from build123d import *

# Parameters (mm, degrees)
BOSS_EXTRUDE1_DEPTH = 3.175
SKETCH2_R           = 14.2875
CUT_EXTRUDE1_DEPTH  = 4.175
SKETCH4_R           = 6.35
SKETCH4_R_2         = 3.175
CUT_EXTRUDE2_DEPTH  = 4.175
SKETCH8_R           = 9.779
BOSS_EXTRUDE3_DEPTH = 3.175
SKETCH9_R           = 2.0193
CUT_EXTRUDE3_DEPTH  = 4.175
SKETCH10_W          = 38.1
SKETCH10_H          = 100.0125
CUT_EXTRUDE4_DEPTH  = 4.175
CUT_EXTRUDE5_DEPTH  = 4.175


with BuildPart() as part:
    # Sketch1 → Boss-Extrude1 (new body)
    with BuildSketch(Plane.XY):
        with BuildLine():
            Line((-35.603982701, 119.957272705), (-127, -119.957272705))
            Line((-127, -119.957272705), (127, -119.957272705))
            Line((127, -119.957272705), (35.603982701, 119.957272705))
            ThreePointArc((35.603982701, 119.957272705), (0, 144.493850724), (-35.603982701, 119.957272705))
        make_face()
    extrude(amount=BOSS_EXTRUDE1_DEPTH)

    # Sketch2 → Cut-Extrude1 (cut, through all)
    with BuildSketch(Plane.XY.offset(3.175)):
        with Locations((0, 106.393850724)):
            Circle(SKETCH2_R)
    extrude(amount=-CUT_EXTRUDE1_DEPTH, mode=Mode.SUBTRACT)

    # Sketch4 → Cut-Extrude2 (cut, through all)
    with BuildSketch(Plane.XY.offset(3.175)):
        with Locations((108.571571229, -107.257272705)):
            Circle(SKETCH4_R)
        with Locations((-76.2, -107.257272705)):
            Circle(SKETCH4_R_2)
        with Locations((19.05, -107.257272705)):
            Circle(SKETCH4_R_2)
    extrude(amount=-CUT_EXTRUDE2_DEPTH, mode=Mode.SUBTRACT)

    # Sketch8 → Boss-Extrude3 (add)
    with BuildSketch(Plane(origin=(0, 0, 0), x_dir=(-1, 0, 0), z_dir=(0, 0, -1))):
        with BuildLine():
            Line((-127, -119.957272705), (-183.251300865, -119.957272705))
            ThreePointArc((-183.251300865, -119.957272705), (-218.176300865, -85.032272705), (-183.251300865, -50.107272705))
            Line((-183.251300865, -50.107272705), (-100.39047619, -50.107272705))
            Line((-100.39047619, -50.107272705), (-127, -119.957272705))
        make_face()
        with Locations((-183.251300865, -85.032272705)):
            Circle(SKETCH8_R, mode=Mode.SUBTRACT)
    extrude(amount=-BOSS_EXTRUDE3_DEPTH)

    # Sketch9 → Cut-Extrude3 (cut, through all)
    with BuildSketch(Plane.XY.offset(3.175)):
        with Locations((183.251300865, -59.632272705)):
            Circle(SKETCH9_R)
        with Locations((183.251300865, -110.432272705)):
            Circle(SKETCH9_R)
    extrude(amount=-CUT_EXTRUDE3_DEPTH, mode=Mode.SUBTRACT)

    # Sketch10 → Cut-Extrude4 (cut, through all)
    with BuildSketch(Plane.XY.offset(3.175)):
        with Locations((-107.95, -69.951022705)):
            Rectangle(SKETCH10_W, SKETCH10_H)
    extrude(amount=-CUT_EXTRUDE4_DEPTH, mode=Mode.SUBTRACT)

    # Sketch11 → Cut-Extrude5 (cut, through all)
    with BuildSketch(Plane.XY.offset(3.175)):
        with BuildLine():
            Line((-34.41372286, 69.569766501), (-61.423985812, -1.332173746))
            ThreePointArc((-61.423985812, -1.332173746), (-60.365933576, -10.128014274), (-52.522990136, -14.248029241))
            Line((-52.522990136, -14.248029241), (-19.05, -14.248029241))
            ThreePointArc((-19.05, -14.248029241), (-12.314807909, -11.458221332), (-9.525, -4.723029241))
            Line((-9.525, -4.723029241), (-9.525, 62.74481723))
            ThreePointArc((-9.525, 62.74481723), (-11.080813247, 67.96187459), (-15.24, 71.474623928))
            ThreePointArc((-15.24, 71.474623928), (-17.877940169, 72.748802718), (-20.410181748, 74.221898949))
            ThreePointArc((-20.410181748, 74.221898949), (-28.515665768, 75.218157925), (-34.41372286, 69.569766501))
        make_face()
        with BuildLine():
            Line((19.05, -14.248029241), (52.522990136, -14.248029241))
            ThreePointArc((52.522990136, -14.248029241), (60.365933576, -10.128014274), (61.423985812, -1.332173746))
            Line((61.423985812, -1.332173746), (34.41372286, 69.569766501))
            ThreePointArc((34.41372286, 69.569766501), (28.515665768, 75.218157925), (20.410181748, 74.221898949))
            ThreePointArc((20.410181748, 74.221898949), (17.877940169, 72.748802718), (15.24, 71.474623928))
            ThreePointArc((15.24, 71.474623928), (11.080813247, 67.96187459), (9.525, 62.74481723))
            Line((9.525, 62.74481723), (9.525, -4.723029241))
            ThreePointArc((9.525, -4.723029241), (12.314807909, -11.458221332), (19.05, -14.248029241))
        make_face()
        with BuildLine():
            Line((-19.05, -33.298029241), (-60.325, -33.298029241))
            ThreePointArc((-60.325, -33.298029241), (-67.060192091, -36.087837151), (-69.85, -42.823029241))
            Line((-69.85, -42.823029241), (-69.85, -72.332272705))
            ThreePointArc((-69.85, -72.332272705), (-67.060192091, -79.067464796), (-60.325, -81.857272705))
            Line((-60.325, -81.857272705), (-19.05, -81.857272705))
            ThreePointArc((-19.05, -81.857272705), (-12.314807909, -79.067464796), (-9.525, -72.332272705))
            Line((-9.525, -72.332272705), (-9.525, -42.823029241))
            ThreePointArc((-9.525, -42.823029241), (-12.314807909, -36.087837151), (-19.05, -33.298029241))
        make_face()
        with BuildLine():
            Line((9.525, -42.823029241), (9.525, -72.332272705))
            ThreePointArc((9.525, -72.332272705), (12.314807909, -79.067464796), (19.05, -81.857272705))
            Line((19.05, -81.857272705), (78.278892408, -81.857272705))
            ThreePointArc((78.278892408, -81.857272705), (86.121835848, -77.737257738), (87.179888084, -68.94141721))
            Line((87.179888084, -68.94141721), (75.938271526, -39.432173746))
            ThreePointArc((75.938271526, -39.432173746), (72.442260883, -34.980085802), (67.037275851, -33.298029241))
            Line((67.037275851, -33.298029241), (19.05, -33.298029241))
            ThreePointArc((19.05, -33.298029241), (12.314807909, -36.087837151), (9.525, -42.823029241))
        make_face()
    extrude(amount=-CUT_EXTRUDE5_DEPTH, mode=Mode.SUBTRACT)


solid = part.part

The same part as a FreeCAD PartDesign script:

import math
import FreeCAD as App
import Part
import Sketcher
Q = App.Units.Quantity


def add_polygon(sketch, points):
    """Adds a closed chain of lines whose ends are joined by coincident constraints."""
    first, n = sketch.GeometryCount, len(points)
    for a, b in zip(points, points[1:] + points[:1]):
        sketch.addGeometry(Part.LineSegment(App.Vector(*a, 0), App.Vector(*b, 0)), False)
    for i in range(n):
        sketch.addConstraint(Sketcher.Constraint("Coincident", first + i, 2, first + (i + 1) % n, 1))

doc = App.newDocument("Part")
body = doc.addObject("PartDesign::Body", "Body")

sketch1 = doc.addObject("Sketcher::SketchObject", "Sketch")
body.addObject(sketch1)
sketch1.AttachmentSupport = (doc.XY_Plane, [""])
sketch1.MapMode = "FlatFace"
sketch1.addGeometry([
    Part.LineSegment(App.Vector(-36, 120, 0), App.Vector(-127, -120, 0)),
    Part.LineSegment(App.Vector(-127, -120, 0), App.Vector(127, -120, 0)),
    Part.LineSegment(App.Vector(127, -120, 0), App.Vector(36, 120, 0)),
    Part.ArcOfCircle(Part.Circle(App.Vector(0, 106, 0), App.Vector(0, 0, 1), 38), math.radians(21), math.radians(159)),
], False)
sketch1.addConstraint([
    Sketcher.Constraint("Coincident", 0, 2, 1, 1),
    Sketcher.Constraint("Coincident", 1, 2, 2, 1),
    Sketcher.Constraint("Tangent", 2, 2, 3, 1),
    Sketcher.Constraint("Tangent", 3, 2, 0, 1),
    Sketcher.Constraint("Horizontal", 1),
    Sketcher.Constraint("Symmetric", 2, 2, 3, 2, -2),
    Sketcher.Constraint("Radius", 3, Q("1.5 in")),
    Sketcher.Constraint("DistanceX", 1, 1, 1, 2, Q("10 in")),
    Sketcher.Constraint("DistanceY", -1, 1, 3, 3, 106.393851),
    Sketcher.Constraint("DistanceY", 3, 3, 2, 2, 13.563422),
])
pad1 = doc.addObject("PartDesign::Pad", "Pad")
body.addObject(pad1)
pad1.Profile = sketch1
pad1.Length = Q("0.125 in")

sketch2 = doc.addObject("Sketcher::SketchObject", "Sketch001")
body.addObject(sketch2)
sketch2.AttachmentSupport = (doc.XY_Plane, [""])
sketch2.MapMode = "FlatFace"
sketch2.AttachmentOffset = App.Placement(App.Vector(0, 0, 0.125 * 25.4), App.Rotation())
sketch2.addGeometry(Part.Circle(App.Vector(0, 106, 0), App.Vector(0, 0, 1), 14), False)
sketch2.addConstraint([
    Sketcher.Constraint("PointOnObject", 0, 3, -2),
    Sketcher.Constraint("Diameter", 0, Q("1.125 in")),
    Sketcher.Constraint("DistanceY", -1, 1, 0, 3, 106.393851),
])
pocket1 = doc.addObject("PartDesign::Pocket", "Pocket")
body.addObject(pocket1)
pocket1.Profile = sketch2
pocket1.Type = "ThroughAll"

sketch3 = doc.addObject("Sketcher::SketchObject", "Sketch002")
body.addObject(sketch3)
sketch3.AttachmentSupport = (doc.XY_Plane, [""])
sketch3.MapMode = "FlatFace"
sketch3.AttachmentOffset = App.Placement(App.Vector(0, 0, 0.125 * 25.4), App.Rotation())
sketch3.addGeometry([
    Part.Circle(App.Vector(108.6, -107.3, 0), App.Vector(0, 0, 1), 6.3),
    Part.Circle(App.Vector(-76.2, -107.3, 0), App.Vector(0, 0, 1), 3.2),
    Part.Circle(App.Vector(19.1, -107.3, 0), App.Vector(0, 0, 1), 3.2),
], False)
sketch3.addConstraint([
    Sketcher.Constraint("Equal", 1, 2),
    Sketcher.Constraint("Horizontal", 0, 3, 1, 3),
    Sketcher.Constraint("Horizontal", 1, 3, 2, 3),
    Sketcher.Constraint("Diameter", 0, Q("0.5 in")),
    Sketcher.Constraint("Diameter", 1, Q("0.25 in")),
    Sketcher.Constraint("DistanceX", 1, 3, -1, 1, Q("3 in")),
    Sketcher.Constraint("DistanceX", -1, 1, 2, 3, Q("0.75 in")),
    Sketcher.Constraint("DistanceX", -1, 1, 0, 3, 108.571571),
    Sketcher.Constraint("DistanceY", 0, 3, -1, 1, 107.257273),
])
pocket2 = doc.addObject("PartDesign::Pocket", "Pocket001")
body.addObject(pocket2)
pocket2.Profile = sketch3
pocket2.Type = "ThroughAll"

sketch4 = doc.addObject("Sketcher::SketchObject", "Sketch003")
body.addObject(sketch4)
sketch4.AttachmentSupport = (doc.XY_Plane, [""])
sketch4.MapMode = "FlatFace"
sketch4.addGeometry([
    Part.LineSegment(App.Vector(183, -120, 0), App.Vector(127, -120, 0)),
    Part.LineSegment(App.Vector(127, -120, 0), App.Vector(100, -50, 0)),
    Part.LineSegment(App.Vector(100, -50, 0), App.Vector(183, -50, 0)),
    Part.ArcOfCircle(Part.Circle(App.Vector(183, -85, 0), App.Vector(0, 0, 1), 35), math.radians(-90), math.radians(90)),
    Part.Circle(App.Vector(183, -85, 0), App.Vector(0, 0, 1), 10),
], False)
sketch4.addConstraint([
    Sketcher.Constraint("Coincident", 0, 2, 1, 1),
    Sketcher.Constraint("Coincident", 1, 2, 2, 1),
    Sketcher.Constraint("Tangent", 2, 2, 3, 2),
    Sketcher.Constraint("Tangent", 3, 1, 0, 1),
    Sketcher.Constraint("Horizontal", 0),
    Sketcher.Constraint("Horizontal", 2),
    Sketcher.Constraint("Coincident", 4, 3, 3, 3),
    Sketcher.Constraint("Diameter", 4, Q("0.77 in")),
    Sketcher.Constraint("DistanceX", -1, 1, 0, 2, Q("5 in")),
    Sketcher.Constraint("Radius", 3, Q("1.375 in")),
    Sketcher.Constraint("DistanceX", 0, 2, 0, 1, 56.251301),
    Sketcher.Constraint("DistanceX", 2, 1, 2, 2, 82.860825),
    Sketcher.Constraint("DistanceY", 3, 3, -1, 1, 85.032273),
])
pad2 = doc.addObject("PartDesign::Pad", "Pad001")
body.addObject(pad2)
pad2.Profile = sketch4
pad2.Length = Q("0.125 in")

sketch5 = doc.addObject("Sketcher::SketchObject", "Sketch004")
body.addObject(sketch5)
sketch5.AttachmentSupport = (doc.XY_Plane, [""])
sketch5.MapMode = "FlatFace"
sketch5.AttachmentOffset = App.Placement(App.Vector(0, 0, 0.125 * 25.4), App.Rotation())
sketch5.addGeometry([
    Part.Circle(App.Vector(183.3, -59.6, 0), App.Vector(0, 0, 1), 2),
    Part.Circle(App.Vector(183.3, -110.4, 0), App.Vector(0, 0, 1), 2),
], False)
sketch5.addConstraint([
    Sketcher.Constraint("Equal", 0, 1),
    Sketcher.Constraint("Vertical", 0, 3, 1, 3),
    Sketcher.Constraint("Diameter", 0, Q("0.159 in")),
    Sketcher.Constraint("DistanceY", 1, 3, 0, 3, Q("2 in")),
    Sketcher.Constraint("DistanceX", -1, 1, 0, 3, 183.251301),
    Sketcher.Constraint("DistanceY", 0, 3, -1, 1, 59.632273),
])
pocket3 = doc.addObject("PartDesign::Pocket", "Pocket002")
body.addObject(pocket3)
pocket3.Profile = sketch5
pocket3.Type = "ThroughAll"

sketch6 = doc.addObject("Sketcher::SketchObject", "Sketch005")
body.addObject(sketch6)
sketch6.AttachmentSupport = (doc.XY_Plane, [""])
sketch6.MapMode = "FlatFace"
sketch6.AttachmentOffset = App.Placement(App.Vector(0, 0, 0.125 * 25.4), App.Rotation())
add_polygon(sketch6, [(-127, -20), (-127, -120), (-89, -120), (-89, -20)])
sketch6.addConstraint([
    Sketcher.Constraint("Vertical", 0),
    Sketcher.Constraint("Horizontal", 1),
    Sketcher.Constraint("Vertical", 2),
    Sketcher.Constraint("Horizontal", 3),
    Sketcher.Constraint("DistanceX", 1, 1, 1, 2, Q("1.5 in")),
    Sketcher.Constraint("DistanceX", 0, 2, -1, 1, Q("5 in")),
    Sketcher.Constraint("DistanceY", 0, 2, 0, 1, Q("3.9375 in")),
    Sketcher.Constraint("DistanceY", 0, 2, -1, 1, 119.957273),
])
pocket4 = doc.addObject("PartDesign::Pocket", "Pocket003")
body.addObject(pocket4)
pocket4.Profile = sketch6
pocket4.Type = "ThroughAll"

sketch7 = doc.addObject("Sketcher::SketchObject", "Sketch006")
body.addObject(sketch7)
sketch7.AttachmentSupport = (doc.XY_Plane, [""])
sketch7.MapMode = "FlatFace"
sketch7.AttachmentOffset = App.Placement(App.Vector(0, 0, 0.125 * 25.4), App.Rotation())
sketch7.addGeometry([
    Part.LineSegment(App.Vector(-34, 70, 0), App.Vector(-61, -1, 0)),
    Part.ArcOfCircle(Part.Circle(App.Vector(-53, -5, 0), App.Vector(0, 0, 1), 10), math.radians(159), math.radians(270)),
    Part.LineSegment(App.Vector(-53, -14, 0), App.Vector(-19, -14, 0)),
    Part.ArcOfCircle(Part.Circle(App.Vector(-19, -5, 0), App.Vector(0, 0, 1), 10), math.radians(-90), math.radians(0)),
    Part.LineSegment(App.Vector(-10, -5, 0), App.Vector(-10, 63, 0)),
    Part.ArcOfCircle(Part.Circle(App.Vector(-19, 63, 0), App.Vector(0, 0, 1), 10), math.radians(0), math.radians(66)),
    Part.ArcOfCircle(Part.Circle(App.Vector(0, 106, 0), App.Vector(0, 0, 1), 38), math.radians(-122.39), math.radians(-113.58)),
    Part.ArcOfCircle(Part.Circle(App.Vector(-26, 66, 0), App.Vector(0, 0, 1), 10), math.radians(58), math.radians(159)),
    Part.LineSegment(App.Vector(19, -14, 0), App.Vector(53, -14, 0)),
    Part.ArcOfCircle(Part.Circle(App.Vector(53, -5, 0), App.Vector(0, 0, 1), 10), math.radians(-90), math.radians(21)),
    Part.LineSegment(App.Vector(61, -1, 0), App.Vector(34, 70, 0)),
    Part.ArcOfCircle(Part.Circle(App.Vector(26, 66, 0), App.Vector(0, 0, 1), 10), math.radians(21), math.radians(122)),
    Part.ArcOfCircle(Part.Circle(App.Vector(0, 106, 0), App.Vector(0, 0, 1), 38), math.radians(-66.42), math.radians(-57.61)),
    Part.ArcOfCircle(Part.Circle(App.Vector(19, 63, 0), App.Vector(0, 0, 1), 10), math.radians(114), math.radians(180)),
    Part.LineSegment(App.Vector(10, 63, 0), App.Vector(10, -5, 0)),
    Part.ArcOfCircle(Part.Circle(App.Vector(19, -5, 0), App.Vector(0, 0, 1), 10), math.radians(180), math.radians(270)),
    Part.LineSegment(App.Vector(-19, -33, 0), App.Vector(-60, -33, 0)),
    Part.ArcOfCircle(Part.Circle(App.Vector(-60, -43, 0), App.Vector(0, 0, 1), 10), math.radians(90), math.radians(180)),
    Part.LineSegment(App.Vector(-70, -43, 0), App.Vector(-70, -72, 0)),
    Part.ArcOfCircle(Part.Circle(App.Vector(-60, -72, 0), App.Vector(0, 0, 1), 10), math.radians(180), math.radians(270)),
    Part.LineSegment(App.Vector(-60, -82, 0), App.Vector(-19, -82, 0)),
    Part.ArcOfCircle(Part.Circle(App.Vector(-19, -72, 0), App.Vector(0, 0, 1), 10), math.radians(-90), math.radians(0)),
    Part.LineSegment(App.Vector(-10, -72, 0), App.Vector(-10, -43, 0)),
    Part.ArcOfCircle(Part.Circle(App.Vector(-19, -43, 0), App.Vector(0, 0, 1), 10), math.radians(0), math.radians(90)),
    Part.LineSegment(App.Vector(10, -43, 0), App.Vector(10, -72, 0)),
    Part.ArcOfCircle(Part.Circle(App.Vector(19, -72, 0), App.Vector(0, 0, 1), 10), math.radians(180), math.radians(270)),
    Part.LineSegment(App.Vector(19, -82, 0), App.Vector(78, -82, 0)),
    Part.ArcOfCircle(Part.Circle(App.Vector(78, -72, 0), App.Vector(0, 0, 1), 10), math.radians(-90), math.radians(21)),
    Part.LineSegment(App.Vector(87, -69, 0), App.Vector(76, -39, 0)),
    Part.ArcOfCircle(Part.Circle(App.Vector(67, -43, 0), App.Vector(0, 0, 1), 10), math.radians(21), math.radians(90)),
    Part.LineSegment(App.Vector(67, -33, 0), App.Vector(19, -33, 0)),
    Part.ArcOfCircle(Part.Circle(App.Vector(19, -43, 0), App.Vector(0, 0, 1), 10), math.radians(90), math.radians(180)),
], False)
sketch7.addConstraint([
    Sketcher.Constraint("Tangent", 0, 2, 1, 1),
    Sketcher.Constraint("Tangent", 1, 2, 2, 1),
    Sketcher.Constraint("Tangent", 2, 2, 3, 1),
    Sketcher.Constraint("Tangent", 3, 2, 4, 1),
    Sketcher.Constraint("Tangent", 4, 2, 5, 1),
    Sketcher.Constraint("Tangent", 5, 2, 6, 2),
    Sketcher.Constraint("Tangent", 6, 1, 7, 1),
    Sketcher.Constraint("Tangent", 7, 2, 0, 1),
    Sketcher.Constraint("Tangent", 8, 2, 9, 1),
    Sketcher.Constraint("Tangent", 9, 2, 10, 1),
    Sketcher.Constraint("Tangent", 10, 2, 11, 1),
    Sketcher.Constraint("Tangent", 11, 2, 12, 2),
    Sketcher.Constraint("Tangent", 12, 1, 13, 1),
    Sketcher.Constraint("Tangent", 13, 2, 14, 1),
    Sketcher.Constraint("Tangent", 14, 2, 15, 1),
    Sketcher.Constraint("Tangent", 15, 2, 8, 1),
    Sketcher.Constraint("Tangent", 16, 2, 17, 1),
    Sketcher.Constraint("Tangent", 17, 2, 18, 1),
    Sketcher.Constraint("Tangent", 18, 2, 19, 1),
    Sketcher.Constraint("Tangent", 19, 2, 20, 1),
    Sketcher.Constraint("Tangent", 20, 2, 21, 1),
    Sketcher.Constraint("Tangent", 21, 2, 22, 1),
    Sketcher.Constraint("Tangent", 22, 2, 23, 1),
    Sketcher.Constraint("Tangent", 23, 2, 16, 1),
    Sketcher.Constraint("Tangent", 24, 2, 25, 1),
    Sketcher.Constraint("Tangent", 25, 2, 26, 1),
    Sketcher.Constraint("Tangent", 26, 2, 27, 1),
    Sketcher.Constraint("Tangent", 27, 2, 28, 1),
    Sketcher.Constraint("Tangent", 28, 2, 29, 1),
    Sketcher.Constraint("Tangent", 29, 2, 30, 1),
    Sketcher.Constraint("Tangent", 30, 2, 31, 1),
    Sketcher.Constraint("Tangent", 31, 2, 24, 1),
    Sketcher.Constraint("Horizontal", 2),
    Sketcher.Constraint("Vertical", 4),
    Sketcher.Constraint("Horizontal", 8),
    Sketcher.Constraint("Vertical", 14),
    Sketcher.Constraint("Horizontal", 16),
    Sketcher.Constraint("Vertical", 18),
    Sketcher.Constraint("Horizontal", 20),
    Sketcher.Constraint("Vertical", 22),
    Sketcher.Constraint("Vertical", 24),
    Sketcher.Constraint("Horizontal", 26),
    Sketcher.Constraint("Horizontal", 30),
    Sketcher.Constraint("Coincident", 12, 3, 6, 3),
    Sketcher.Constraint("Equal", 1, 3),
    Sketcher.Constraint("Equal", 3, 5),
    Sketcher.Constraint("Equal", 5, 7),
    Sketcher.Constraint("Equal", 7, 9),
    Sketcher.Constraint("Equal", 9, 11),
    Sketcher.Constraint("Equal", 6, 12),
    Sketcher.Constraint("Equal", 11, 13),
    Sketcher.Constraint("Equal", 13, 15),
    Sketcher.Constraint("Equal", 15, 17),
    Sketcher.Constraint("Equal", 17, 19),
    Sketcher.Constraint("Equal", 19, 21),
    Sketcher.Constraint("Equal", 21, 23),
    Sketcher.Constraint("Equal", 23, 25),
    Sketcher.Constraint("Equal", 25, 27),
    Sketcher.Constraint("Equal", 27, 29),
    Sketcher.Constraint("Equal", 29, 31),
    Sketcher.Constraint("Symmetric", 1, 3, 9, 3, -2),
    Sketcher.Constraint("Symmetric", 7, 3, 11, 3, -2),
    Sketcher.Constraint("Symmetric", 21, 3, 25, 3, -2),
    Sketcher.Constraint("Parallel", 10, 28),
    Sketcher.Constraint("Horizontal", 5, 3, 13, 3),
    Sketcher.Constraint("Horizontal", 23, 3, 29, 3),
    Sketcher.Constraint("Vertical", 5, 3, 21, 3),
    Sketcher.Constraint("Radius", 6, Q("1.5 in")),
    Sketcher.Constraint("Radius", 1, Q("0.375 in")),
    Sketcher.Constraint("DistanceX", 18, 2, 21, 3, Q("2 in")),
    Sketcher.Constraint("DistanceX", 5, 2, -1, 1, Q("0.6 in")),
    Sketcher.Constraint("DistanceY", 17, 3, 1, 3, Q("1.5 in")),
    Sketcher.Constraint("DistanceX", 2, 1, 2, 2, 33.47299),
    Sketcher.Constraint("DistanceY", -1, 1, 6, 1, 74.221899),
    Sketcher.Constraint("DistanceY", 19, 3, 0, 2, 71.000099),
    Sketcher.Constraint("Distance", 0, 75.872521),
    Sketcher.Constraint("Distance", 28, 31.577989),
    Sketcher.Constraint("DistanceX", 26, 1, 26, 2, 59.228892),
])
pocket5 = doc.addObject("PartDesign::Pocket", "Pocket004")
body.addObject(pocket5)
pocket5.Profile = sketch7
pocket5.Type = "ThroughAll"

doc.recompute()
